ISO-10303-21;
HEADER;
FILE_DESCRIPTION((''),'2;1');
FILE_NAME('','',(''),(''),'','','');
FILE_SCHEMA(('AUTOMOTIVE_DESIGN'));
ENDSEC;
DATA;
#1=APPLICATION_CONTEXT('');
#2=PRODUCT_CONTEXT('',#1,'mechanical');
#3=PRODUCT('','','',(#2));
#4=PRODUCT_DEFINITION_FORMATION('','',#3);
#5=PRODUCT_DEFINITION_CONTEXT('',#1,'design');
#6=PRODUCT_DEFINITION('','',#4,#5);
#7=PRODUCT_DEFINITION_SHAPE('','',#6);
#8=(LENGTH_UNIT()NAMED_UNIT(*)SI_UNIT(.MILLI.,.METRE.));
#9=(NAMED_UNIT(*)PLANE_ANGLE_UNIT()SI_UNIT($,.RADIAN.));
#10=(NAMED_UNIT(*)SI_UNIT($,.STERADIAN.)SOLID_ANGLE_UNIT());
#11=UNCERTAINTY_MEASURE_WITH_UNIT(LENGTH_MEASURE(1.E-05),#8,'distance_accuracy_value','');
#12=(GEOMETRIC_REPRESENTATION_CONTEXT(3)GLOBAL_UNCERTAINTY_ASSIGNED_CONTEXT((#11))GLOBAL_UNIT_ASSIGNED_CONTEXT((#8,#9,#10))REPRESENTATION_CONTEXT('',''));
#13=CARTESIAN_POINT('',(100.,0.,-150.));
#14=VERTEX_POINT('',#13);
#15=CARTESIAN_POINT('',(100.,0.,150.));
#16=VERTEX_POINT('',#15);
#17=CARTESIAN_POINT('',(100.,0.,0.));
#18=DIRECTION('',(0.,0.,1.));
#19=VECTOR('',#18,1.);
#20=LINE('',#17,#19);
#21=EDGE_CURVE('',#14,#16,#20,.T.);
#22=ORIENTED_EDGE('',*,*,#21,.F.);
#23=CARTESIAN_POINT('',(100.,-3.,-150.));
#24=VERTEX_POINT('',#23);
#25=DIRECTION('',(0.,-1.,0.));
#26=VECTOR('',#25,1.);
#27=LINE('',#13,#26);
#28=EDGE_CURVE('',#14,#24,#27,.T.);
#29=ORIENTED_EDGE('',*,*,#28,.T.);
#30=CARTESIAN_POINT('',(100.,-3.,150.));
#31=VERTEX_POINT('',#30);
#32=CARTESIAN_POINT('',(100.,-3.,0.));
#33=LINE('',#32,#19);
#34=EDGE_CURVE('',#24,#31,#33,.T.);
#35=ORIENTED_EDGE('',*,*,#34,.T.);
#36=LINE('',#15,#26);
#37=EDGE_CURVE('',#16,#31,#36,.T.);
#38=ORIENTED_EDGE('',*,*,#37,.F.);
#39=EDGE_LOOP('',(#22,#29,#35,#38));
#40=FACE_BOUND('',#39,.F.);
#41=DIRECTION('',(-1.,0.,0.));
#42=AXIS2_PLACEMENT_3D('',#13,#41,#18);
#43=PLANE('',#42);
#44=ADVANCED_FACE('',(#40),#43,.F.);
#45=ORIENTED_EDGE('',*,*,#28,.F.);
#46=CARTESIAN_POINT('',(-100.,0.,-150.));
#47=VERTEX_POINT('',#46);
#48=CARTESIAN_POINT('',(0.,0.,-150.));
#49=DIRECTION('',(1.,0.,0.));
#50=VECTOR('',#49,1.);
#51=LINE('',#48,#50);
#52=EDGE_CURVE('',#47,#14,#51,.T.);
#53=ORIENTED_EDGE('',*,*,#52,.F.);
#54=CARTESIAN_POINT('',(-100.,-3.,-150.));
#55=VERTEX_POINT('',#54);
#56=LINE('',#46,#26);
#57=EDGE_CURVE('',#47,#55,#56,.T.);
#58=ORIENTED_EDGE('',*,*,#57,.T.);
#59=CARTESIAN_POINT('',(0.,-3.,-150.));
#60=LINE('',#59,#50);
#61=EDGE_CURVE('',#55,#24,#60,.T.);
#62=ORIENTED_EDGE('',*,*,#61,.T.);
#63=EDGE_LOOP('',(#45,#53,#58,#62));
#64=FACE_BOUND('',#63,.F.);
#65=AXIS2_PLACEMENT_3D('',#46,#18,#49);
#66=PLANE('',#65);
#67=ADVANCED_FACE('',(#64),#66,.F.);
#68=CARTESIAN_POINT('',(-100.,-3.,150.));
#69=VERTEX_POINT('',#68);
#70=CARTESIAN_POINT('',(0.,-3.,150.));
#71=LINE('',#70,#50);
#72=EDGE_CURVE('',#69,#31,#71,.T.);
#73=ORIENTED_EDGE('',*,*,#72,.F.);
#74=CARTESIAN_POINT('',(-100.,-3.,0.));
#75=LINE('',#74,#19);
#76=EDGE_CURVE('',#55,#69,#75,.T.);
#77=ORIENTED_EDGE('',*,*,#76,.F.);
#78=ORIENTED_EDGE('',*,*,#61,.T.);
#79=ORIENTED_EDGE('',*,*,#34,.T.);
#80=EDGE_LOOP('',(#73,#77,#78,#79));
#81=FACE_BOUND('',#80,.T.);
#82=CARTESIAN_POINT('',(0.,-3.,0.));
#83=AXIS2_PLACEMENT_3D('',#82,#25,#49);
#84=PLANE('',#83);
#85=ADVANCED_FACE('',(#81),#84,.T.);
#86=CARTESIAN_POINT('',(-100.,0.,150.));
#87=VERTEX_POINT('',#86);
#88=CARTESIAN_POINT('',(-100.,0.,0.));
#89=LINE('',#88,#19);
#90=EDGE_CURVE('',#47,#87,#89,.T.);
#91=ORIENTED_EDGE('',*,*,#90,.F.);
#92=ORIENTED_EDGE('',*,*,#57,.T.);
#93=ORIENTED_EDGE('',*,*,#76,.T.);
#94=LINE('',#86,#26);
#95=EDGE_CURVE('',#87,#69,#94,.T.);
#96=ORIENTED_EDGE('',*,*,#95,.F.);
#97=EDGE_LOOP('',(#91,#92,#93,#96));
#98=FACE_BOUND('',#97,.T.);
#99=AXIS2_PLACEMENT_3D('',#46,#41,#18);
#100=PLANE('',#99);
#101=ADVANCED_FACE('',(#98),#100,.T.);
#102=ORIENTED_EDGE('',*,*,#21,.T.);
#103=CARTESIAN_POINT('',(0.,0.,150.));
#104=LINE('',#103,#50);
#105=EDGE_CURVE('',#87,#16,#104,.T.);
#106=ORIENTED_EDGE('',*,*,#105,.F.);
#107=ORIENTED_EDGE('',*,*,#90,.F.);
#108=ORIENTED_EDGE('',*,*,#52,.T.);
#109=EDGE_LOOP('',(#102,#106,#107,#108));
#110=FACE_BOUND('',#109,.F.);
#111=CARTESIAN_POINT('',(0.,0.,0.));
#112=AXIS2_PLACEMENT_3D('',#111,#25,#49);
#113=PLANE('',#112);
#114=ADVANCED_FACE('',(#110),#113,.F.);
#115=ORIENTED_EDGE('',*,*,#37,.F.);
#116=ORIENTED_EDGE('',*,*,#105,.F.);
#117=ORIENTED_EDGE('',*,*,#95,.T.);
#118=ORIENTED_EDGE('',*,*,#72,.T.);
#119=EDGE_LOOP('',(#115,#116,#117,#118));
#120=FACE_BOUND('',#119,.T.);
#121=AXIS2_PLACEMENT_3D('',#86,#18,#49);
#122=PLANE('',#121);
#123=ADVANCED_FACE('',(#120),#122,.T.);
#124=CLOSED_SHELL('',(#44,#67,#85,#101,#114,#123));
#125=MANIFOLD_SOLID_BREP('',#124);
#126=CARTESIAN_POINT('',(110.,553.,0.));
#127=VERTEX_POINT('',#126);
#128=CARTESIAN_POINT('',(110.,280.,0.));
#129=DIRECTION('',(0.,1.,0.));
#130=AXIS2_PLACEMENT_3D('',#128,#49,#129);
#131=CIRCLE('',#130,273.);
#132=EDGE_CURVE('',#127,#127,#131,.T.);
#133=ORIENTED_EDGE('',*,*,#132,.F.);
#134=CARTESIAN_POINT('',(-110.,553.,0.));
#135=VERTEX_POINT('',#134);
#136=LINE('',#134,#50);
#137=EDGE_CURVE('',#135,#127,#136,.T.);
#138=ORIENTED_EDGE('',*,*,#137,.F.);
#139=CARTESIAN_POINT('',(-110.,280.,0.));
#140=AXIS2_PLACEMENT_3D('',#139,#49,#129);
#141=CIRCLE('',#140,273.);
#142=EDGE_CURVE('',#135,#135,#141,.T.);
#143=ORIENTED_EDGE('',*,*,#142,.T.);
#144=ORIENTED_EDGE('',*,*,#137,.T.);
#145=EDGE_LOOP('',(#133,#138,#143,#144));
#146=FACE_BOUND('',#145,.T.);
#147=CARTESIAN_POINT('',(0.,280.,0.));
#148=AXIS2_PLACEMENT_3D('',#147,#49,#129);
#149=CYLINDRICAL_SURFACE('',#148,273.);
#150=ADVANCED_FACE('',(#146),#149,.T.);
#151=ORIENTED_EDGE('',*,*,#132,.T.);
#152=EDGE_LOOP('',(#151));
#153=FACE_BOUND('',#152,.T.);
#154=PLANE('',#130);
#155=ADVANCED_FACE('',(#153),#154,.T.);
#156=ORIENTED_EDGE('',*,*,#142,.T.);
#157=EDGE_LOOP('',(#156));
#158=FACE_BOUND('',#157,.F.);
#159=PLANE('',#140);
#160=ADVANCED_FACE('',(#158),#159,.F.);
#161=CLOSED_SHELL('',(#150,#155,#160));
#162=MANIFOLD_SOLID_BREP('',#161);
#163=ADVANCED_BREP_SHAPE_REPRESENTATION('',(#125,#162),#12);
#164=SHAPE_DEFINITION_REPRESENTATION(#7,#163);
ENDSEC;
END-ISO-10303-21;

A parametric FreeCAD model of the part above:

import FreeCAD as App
import Part
import Sketcher

V = App.Vector
Q = App.Units.Quantity

doc = App.newDocument("Part")
body = doc.addObject("PartDesign::Body", "Body")

sketch1 = doc.addObject("Sketcher::SketchObject", "Sketch")
body.addObject(sketch1)
sketch1.AttachmentSupport = (doc.XZ_Plane, [""])
sketch1.MapMode = "FlatFace"
sketch1.addGeometry([
    Part.LineSegment(V(-100, 150, 0), V(-100, -150, 0)),
    Part.LineSegment(V(-100, -150, 0), V(100, -150, 0)),
    Part.LineSegment(V(100, -150, 0), V(100, 150, 0)),
    Part.LineSegment(V(100, 150, 0), V(-100, 150, 0)),
], False)
sketch1.addConstraint([
    Sketcher.Constraint("Coincident", 0, 2, 1, 1),
    Sketcher.Constraint("Coincident", 1, 2, 2, 1),
    Sketcher.Constraint("Coincident", 2, 2, 3, 1),
    Sketcher.Constraint("Coincident", 3, 2, 0, 1),
    Sketcher.Constraint("Vertical", 0),
    Sketcher.Constraint("Horizontal", 1),
    Sketcher.Constraint("Vertical", 2),
    Sketcher.Constraint("Horizontal", 3),
    Sketcher.Constraint("Symmetric", 0, 2, 2, 2, -1, 1),
    Sketcher.Constraint("DistanceX", 1, 1, 1, 2, Q("200 mm")),
    Sketcher.Constraint("DistanceY", 0, 2, 0, 1, Q("300 mm")),
])
pad1 = doc.addObject("PartDesign::Pad", "Pad")
body.addObject(pad1)
pad1.Profile = sketch1
pad1.Length = 3
body2 = doc.addObject("PartDesign::Body", "Body001")

sketch2 = doc.addObject("Sketcher::SketchObject", "Sketch001")
body2.addObject(sketch2)
sketch2.AttachmentSupport = (doc.getObject("YZ_Plane001"), [""])
sketch2.MapMode = "FlatFace"
sketch2.addGeometry(Part.Circle(V(280, 0, 0), V(0, 0, 1), 273), False)
sketch2.addConstraint([
    Sketcher.Constraint("PointOnObject", 0, 3, -1),
    Sketcher.Constraint("Diameter", 0, Q("546 mm")),
    Sketcher.Constraint("DistanceX", -1, 1, 0, 3, Q("280 mm")),
])
pad2 = doc.addObject("PartDesign::Pad", "Pad001")
body2.addObject(pad2)
pad2.Profile = sketch2
pad2.Type = "TwoLengths"
pad2.Length = 110
pad2.Length2 = 110

doc.recompute()
